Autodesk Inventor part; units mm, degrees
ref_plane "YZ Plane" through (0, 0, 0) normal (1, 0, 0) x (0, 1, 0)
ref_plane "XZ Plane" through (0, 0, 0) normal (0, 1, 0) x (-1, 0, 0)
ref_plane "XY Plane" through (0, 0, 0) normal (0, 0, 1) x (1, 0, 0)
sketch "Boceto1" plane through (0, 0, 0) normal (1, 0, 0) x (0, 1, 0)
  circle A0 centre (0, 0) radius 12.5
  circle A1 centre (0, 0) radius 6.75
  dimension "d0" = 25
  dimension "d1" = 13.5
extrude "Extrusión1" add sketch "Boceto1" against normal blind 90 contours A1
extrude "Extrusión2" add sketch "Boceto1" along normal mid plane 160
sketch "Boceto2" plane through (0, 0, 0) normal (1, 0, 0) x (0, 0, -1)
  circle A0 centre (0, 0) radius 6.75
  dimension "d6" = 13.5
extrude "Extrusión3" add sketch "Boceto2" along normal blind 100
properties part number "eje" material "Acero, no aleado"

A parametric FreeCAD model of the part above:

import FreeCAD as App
import Part
import Sketcher

V = App.Vector

doc = App.newDocument("Part")
body = doc.addObject("PartDesign::Body", "Body")

sketch1 = doc.addObject("Sketcher::SketchObject", "Sketch")
body.addObject(sketch1)
sketch1.AttachmentSupport = (doc.YZ_Plane, [""])
sketch1.MapMode = "FlatFace"
sketch1.addGeometry(Part.Circle(V(0, 0, 0), V(0, 0, 1), 7), False)
sketch1.addConstraint([
    Sketcher.Constraint("Coincident", 0, 3, -1, 1),
    Sketcher.Constraint("Diameter", 0, 13.5),
])
pad1 = doc.addObject("PartDesign::Pad", "Pad")
body.addObject(pad1)
pad1.Profile = sketch1
pad1.Length = 90
pad1.Reversed = True

sketch2 = doc.addObject("Sketcher::SketchObject", "Sketch001")
body.addObject(sketch2)
sketch2.AttachmentSupport = (doc.YZ_Plane, [""])
sketch2.MapMode = "FlatFace"
sketch2.addGeometry([
    Part.Circle(V(0, 0, 0), V(0, 0, 1), 12),
    Part.Circle(V(0, 0, 0), V(0, 0, 1), 7),
], False)
sketch2.addConstraint([
    Sketcher.Constraint("Coincident", 0, 3, -1, 1),
    Sketcher.Constraint("Coincident", 1, 3, -1, 1),
    Sketcher.Constraint("Diameter", 0, 25.0),
    Sketcher.Constraint("Diameter", 1, 13.5),
])
pad2 = doc.addObject("PartDesign::Pad", "Pad001")
body.addObject(pad2)
pad2.Profile = sketch2
pad2.Length = 160
pad2.Midplane = True

sketch3 = doc.addObject("Sketcher::SketchObject", "Sketch002")
body.addObject(sketch3)
sketch3.AttachmentSupport = (doc.YZ_Plane, [""])
sketch3.MapMode = "FlatFace"
sketch3.addGeometry(Part.Circle(V(0, 0, 0), V(0, 0, 1), 7), False)
sketch3.addConstraint([
    Sketcher.Constraint("Coincident", 0, 3, -1, 1),
    Sketcher.Constraint("Diameter", 0, 13.5),
])
pad3 = doc.addObject("PartDesign::Pad", "Pad002")
body.addObject(pad3)
pad3.Profile = sketch3
pad3.Length = 100

doc.recompute()
